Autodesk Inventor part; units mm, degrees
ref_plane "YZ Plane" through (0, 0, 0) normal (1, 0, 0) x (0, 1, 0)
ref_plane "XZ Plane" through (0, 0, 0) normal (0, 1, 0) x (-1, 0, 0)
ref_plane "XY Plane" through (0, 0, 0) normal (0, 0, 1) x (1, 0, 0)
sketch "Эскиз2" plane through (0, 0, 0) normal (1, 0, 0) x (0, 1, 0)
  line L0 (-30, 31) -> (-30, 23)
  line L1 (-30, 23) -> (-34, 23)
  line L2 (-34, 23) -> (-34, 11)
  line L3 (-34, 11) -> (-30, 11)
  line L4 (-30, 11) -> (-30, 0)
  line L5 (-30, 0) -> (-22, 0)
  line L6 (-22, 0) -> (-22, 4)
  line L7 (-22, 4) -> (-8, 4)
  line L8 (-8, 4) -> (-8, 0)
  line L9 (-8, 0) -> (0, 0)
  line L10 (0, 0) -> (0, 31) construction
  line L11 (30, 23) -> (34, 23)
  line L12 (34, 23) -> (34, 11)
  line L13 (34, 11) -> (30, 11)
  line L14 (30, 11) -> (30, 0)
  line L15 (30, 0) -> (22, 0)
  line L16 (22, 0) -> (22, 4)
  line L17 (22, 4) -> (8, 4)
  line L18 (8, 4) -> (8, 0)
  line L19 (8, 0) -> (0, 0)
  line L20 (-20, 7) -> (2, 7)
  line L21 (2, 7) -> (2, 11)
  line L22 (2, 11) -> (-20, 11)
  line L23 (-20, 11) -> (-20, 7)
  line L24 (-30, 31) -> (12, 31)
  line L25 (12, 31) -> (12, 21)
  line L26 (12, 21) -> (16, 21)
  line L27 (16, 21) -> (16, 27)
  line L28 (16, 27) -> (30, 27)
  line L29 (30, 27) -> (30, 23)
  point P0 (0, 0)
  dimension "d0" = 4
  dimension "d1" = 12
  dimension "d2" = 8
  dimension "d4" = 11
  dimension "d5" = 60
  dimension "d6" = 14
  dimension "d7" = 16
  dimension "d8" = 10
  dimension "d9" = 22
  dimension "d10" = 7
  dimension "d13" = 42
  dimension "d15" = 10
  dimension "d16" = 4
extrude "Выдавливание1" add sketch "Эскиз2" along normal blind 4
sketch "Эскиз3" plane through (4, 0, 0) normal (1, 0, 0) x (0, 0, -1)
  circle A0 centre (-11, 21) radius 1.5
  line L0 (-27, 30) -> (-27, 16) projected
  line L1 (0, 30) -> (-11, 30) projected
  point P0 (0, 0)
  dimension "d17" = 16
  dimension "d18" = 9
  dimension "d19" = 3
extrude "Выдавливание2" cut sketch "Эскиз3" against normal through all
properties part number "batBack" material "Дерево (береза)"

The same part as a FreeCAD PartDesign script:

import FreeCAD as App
import Part
import Sketcher

V = App.Vector

doc = App.newDocument("Part")
body = doc.addObject("PartDesign::Body", "Body")

sketch1 = doc.addObject("Sketcher::SketchObject", "Sketch")
body.addObject(sketch1)
sketch1.AttachmentSupport = (doc.YZ_Plane, [""])
sketch1.MapMode = "FlatFace"
sketch1.addGeometry(Part.LineSegment(V(12, 31, 0), V(-30, 31, 0)), False)
sketch1.addGeometry(Part.LineSegment(V(-30, 31, 0), V(-30, 23, 0)), False)
sketch1.addGeometry(Part.LineSegment(V(-30, 23, 0), V(-34, 23, 0)), False)
sketch1.addGeometry(Part.LineSegment(V(-34, 23, 0), V(-34, 11, 0)), False)
sketch1.addGeometry(Part.LineSegment(V(-34, 11, 0), V(-30, 11, 0)), False)
sketch1.addGeometry(Part.LineSegment(V(-30, 11, 0), V(-30, 0, 0)), False)
sketch1.addGeometry(Part.LineSegment(V(-30, 0, 0), V(-22, 0, 0)), False)
sketch1.addGeometry(Part.LineSegment(V(-22, 0, 0), V(-22, 4, 0)), False)
sketch1.addGeometry(Part.LineSegment(V(-22, 4, 0), V(-8, 4, 0)), False)
sketch1.addGeometry(Part.LineSegment(V(-8, 4, 0), V(-8, 0, 0)), False)
sketch1.addGeometry(Part.LineSegment(V(-8, 0, 0), V(8, 0, 0)), False)
sketch1.addGeometry(Part.LineSegment(V(8, 0, 0), V(8, 4, 0)), False)
sketch1.addGeometry(Part.LineSegment(V(8, 4, 0), V(22, 4, 0)), False)
sketch1.addGeometry(Part.LineSegment(V(22, 4, 0), V(22, 0, 0)), False)
sketch1.addGeometry(Part.LineSegment(V(22, 0, 0), V(30, 0, 0)), False)
sketch1.addGeometry(Part.LineSegment(V(30, 0, 0), V(30, 11, 0)), False)
sketch1.addGeometry(Part.LineSegment(V(30, 11, 0), V(34, 11, 0)), False)
sketch1.addGeometry(Part.LineSegment(V(34, 11, 0), V(34, 23, 0)), False)
sketch1.addGeometry(Part.LineSegment(V(34, 23, 0), V(30, 23, 0)), False)
sketch1.addGeometry(Part.LineSegment(V(30, 23, 0), V(30, 27, 0)), False)
sketch1.addGeometry(Part.LineSegment(V(30, 27, 0), V(16, 27, 0)), False)
sketch1.addGeometry(Part.LineSegment(V(16, 27, 0), V(16, 21, 0)), False)
sketch1.addGeometry(Part.LineSegment(V(16, 21, 0), V(12, 21, 0)), False)
sketch1.addGeometry(Part.LineSegment(V(12, 21, 0), V(12, 31, 0)), False)
sketch1.addGeometry(Part.LineSegment(V(2, 7, 0), V(-20, 7, 0)), False)
sketch1.addGeometry(Part.LineSegment(V(-20, 7, 0), V(-20, 11, 0)), False)
sketch1.addGeometry(Part.LineSegment(V(-20, 11, 0), V(2, 11, 0)), False)
sketch1.addGeometry(Part.LineSegment(V(2, 11, 0), V(2, 7, 0)), False)
sketch1.addConstraint(Sketcher.Constraint("Coincident", 0, 2, 1, 1))
sketch1.addConstraint(Sketcher.Constraint("Coincident", 1, 2, 2, 1))
sketch1.addConstraint(Sketcher.Constraint("Coincident", 2, 2, 3, 1))
sketch1.addConstraint(Sketcher.Constraint("Coincident", 3, 2, 4, 1))
sketch1.addConstraint(Sketcher.Constraint("Coincident", 4, 2, 5, 1))
sketch1.addConstraint(Sketcher.Constraint("Coincident", 5, 2, 6, 1))
sketch1.addConstraint(Sketcher.Constraint("Coincident", 6, 2, 7, 1))
sketch1.addConstraint(Sketcher.Constraint("Coincident", 7, 2, 8, 1))
sketch1.addConstraint(Sketcher.Constraint("Coincident", 8, 2, 9, 1))
sketch1.addConstraint(Sketcher.Constraint("Coincident", 9, 2, 10, 1))
sketch1.addConstraint(Sketcher.Constraint("Coincident", 10, 2, 11, 1))
sketch1.addConstraint(Sketcher.Constraint("Coincident", 11, 2, 12, 1))
sketch1.addConstraint(Sketcher.Constraint("Coincident", 12, 2, 13, 1))
sketch1.addConstraint(Sketcher.Constraint("Coincident", 13, 2, 14, 1))
sketch1.addConstraint(Sketcher.Constraint("Coincident", 14, 2, 15, 1))
sketch1.addConstraint(Sketcher.Constraint("Coincident", 15, 2, 16, 1))
sketch1.addConstraint(Sketcher.Constraint("Coincident", 16, 2, 17, 1))
sketch1.addConstraint(Sketcher.Constraint("Coincident", 17, 2, 18, 1))
sketch1.addConstraint(Sketcher.Constraint("Coincident", 18, 2, 19, 1))
sketch1.addConstraint(Sketcher.Constraint("Coincident", 19, 2, 20, 1))
sketch1.addConstraint(Sketcher.Constraint("Coincident", 20, 2, 21, 1))
sketch1.addConstraint(Sketcher.Constraint("Coincident", 21, 2, 22, 1))
sketch1.addConstraint(Sketcher.Constraint("Coincident", 22, 2, 23, 1))
sketch1.addConstraint(Sketcher.Constraint("Coincident", 23, 2, 0, 1))
sketch1.addConstraint(Sketcher.Constraint("Coincident", 24, 2, 25, 1))
sketch1.addConstraint(Sketcher.Constraint("Coincident", 25, 2, 26, 1))
sketch1.addConstraint(Sketcher.Constraint("Coincident", 26, 2, 27, 1))
sketch1.addConstraint(Sketcher.Constraint("Coincident", 27, 2, 24, 1))
sketch1.addConstraint(Sketcher.Constraint("Horizontal", 0))
sketch1.addConstraint(Sketcher.Constraint("Vertical", 1))
sketch1.addConstraint(Sketcher.Constraint("Horizontal", 2))
sketch1.addConstraint(Sketcher.Constraint("Vertical", 3))
sketch1.addConstraint(Sketcher.Constraint("Horizontal", 4))
sketch1.addConstraint(Sketcher.Constraint("Vertical", 5))
sketch1.addConstraint(Sketcher.Constraint("Horizontal", 6))
sketch1.addConstraint(Sketcher.Constraint("Vertical", 7))
sketch1.addConstraint(Sketcher.Constraint("Horizontal", 8))
sketch1.addConstraint(Sketcher.Constraint("Vertical", 9))
sketch1.addConstraint(Sketcher.Constraint("Horizontal", 10))
sketch1.addConstraint(Sketcher.Constraint("Vertical", 11))
sketch1.addConstraint(Sketcher.Constraint("Horizontal", 12))
sketch1.addConstraint(Sketcher.Constraint("Vertical", 13))
sketch1.addConstraint(Sketcher.Constraint("Horizontal", 14))
sketch1.addConstraint(Sketcher.Constraint("Vertical", 15))
sketch1.addConstraint(Sketcher.Constraint("Horizontal", 16))
sketch1.addConstraint(Sketcher.Constraint("Vertical", 17))
sketch1.addConstraint(Sketcher.Constraint("Horizontal", 18))
sketch1.addConstraint(Sketcher.Constraint("Vertical", 19))
sketch1.addConstraint(Sketcher.Constraint("Horizontal", 20))
sketch1.addConstraint(Sketcher.Constraint("Vertical", 21))
sketch1.addConstraint(Sketcher.Constraint("Horizontal", 22))
sketch1.addConstraint(Sketcher.Constraint("Vertical", 23))
sketch1.addConstraint(Sketcher.Constraint("Horizontal", 24))
sketch1.addConstraint(Sketcher.Constraint("Vertical", 25))
sketch1.addConstraint(Sketcher.Constraint("Horizontal", 26))
sketch1.addConstraint(Sketcher.Constraint("Vertical", 27))
sketch1.addConstraint(Sketcher.Constraint("Symmetric", 9, 2, 10, 2, -1, 1))
sketch1.addConstraint(Sketcher.Constraint("Symmetric", 6, 2, 13, 2, -1, 1))
sketch1.addConstraint(Sketcher.Constraint("Symmetric", 5, 2, 14, 2, -2))
sketch1.addConstraint(Sketcher.Constraint("Symmetric", 3, 2, 16, 2, -2))
sketch1.addConstraint(Sketcher.Constraint("Symmetric", 1, 2, 18, 2, -2))
sketch1.addConstraint(Sketcher.Constraint("Horizontal", 8, 2, 11, 2))
sketch1.addConstraint(Sketcher.Constraint("Horizontal", 16, 2, 25, 2))
sketch1.addConstraint(Sketcher.Constraint("Vertical", 1, 2, 4, 2))
sketch1.addConstraint(Sketcher.Constraint("Equal", 12, 20))
sketch1.addConstraint(Sketcher.Constraint("Equal", 18, 22))
sketch1.addConstraint(Sketcher.Constraint("Equal", 14, 1))
sketch1.addConstraint(Sketcher.Constraint("Equal", 22, 7))
sketch1.addConstraint(Sketcher.Constraint("Equal", 13, 19))
sketch1.addConstraint(Sketcher.Constraint("Equal", 19, 25))
sketch1.addConstraint(Sketcher.Constraint("DistanceX", 0, 2, 0, 1, 42.0))
sketch1.addConstraint(Sketcher.Constraint("DistanceX", 2, 2, 2, 1, 4.0))
sketch1.addConstraint(Sketcher.Constraint("DistanceX", 6, 1, 6, 2, 8.0))
sketch1.addConstraint(Sketcher.Constraint("DistanceX", 8, 1, 8, 2, 14.0))
sketch1.addConstraint(Sketcher.Constraint("DistanceX", 24, 2, 24, 1, 22.0))
sketch1.addConstraint(Sketcher.Constraint("DistanceY", 3, 2, 3, 1, 12.0))
sketch1.addConstraint(Sketcher.Constraint("DistanceY", 5, 2, 5, 1, 11.0))
sketch1.addConstraint(Sketcher.Constraint("DistanceY", 23, 1, 23, 2, 10.0))
sketch1.addConstraint(Sketcher.Constraint("DistanceX", 4, 2, 24, 2, 10.0))
pad1 = doc.addObject("PartDesign::Pad", "Pad")
body.addObject(pad1)
pad1.Profile = sketch1
pad1.Length = 4

sketch2 = doc.addObject("Sketcher::SketchObject", "Sketch001")
body.addObject(sketch2)
sketch2.AttachmentSupport = (doc.YZ_Plane, [""])
sketch2.MapMode = "FlatFace"
sketch2.AttachmentOffset = App.Placement(V(0, 0, 4), App.Rotation())
sketch2.addGeometry(Part.Circle(V(21, 11, 0), V(0, 0, 1), 1.5), False)
sketch2.addConstraint(Sketcher.Constraint("Diameter", 0, 3.0))
sketch2.addConstraint(Sketcher.Constraint("DistanceX", -1, 1, 0, 3, 21.0))
sketch2.addConstraint(Sketcher.Constraint("DistanceY", -1, 1, 0, 3, 11.0))
pocket1 = doc.addObject("PartDesign::Pocket", "Pocket")
body.addObject(pocket1)
pocket1.Profile = sketch2
pocket1.Type = "ThroughAll"

doc.recompute()
